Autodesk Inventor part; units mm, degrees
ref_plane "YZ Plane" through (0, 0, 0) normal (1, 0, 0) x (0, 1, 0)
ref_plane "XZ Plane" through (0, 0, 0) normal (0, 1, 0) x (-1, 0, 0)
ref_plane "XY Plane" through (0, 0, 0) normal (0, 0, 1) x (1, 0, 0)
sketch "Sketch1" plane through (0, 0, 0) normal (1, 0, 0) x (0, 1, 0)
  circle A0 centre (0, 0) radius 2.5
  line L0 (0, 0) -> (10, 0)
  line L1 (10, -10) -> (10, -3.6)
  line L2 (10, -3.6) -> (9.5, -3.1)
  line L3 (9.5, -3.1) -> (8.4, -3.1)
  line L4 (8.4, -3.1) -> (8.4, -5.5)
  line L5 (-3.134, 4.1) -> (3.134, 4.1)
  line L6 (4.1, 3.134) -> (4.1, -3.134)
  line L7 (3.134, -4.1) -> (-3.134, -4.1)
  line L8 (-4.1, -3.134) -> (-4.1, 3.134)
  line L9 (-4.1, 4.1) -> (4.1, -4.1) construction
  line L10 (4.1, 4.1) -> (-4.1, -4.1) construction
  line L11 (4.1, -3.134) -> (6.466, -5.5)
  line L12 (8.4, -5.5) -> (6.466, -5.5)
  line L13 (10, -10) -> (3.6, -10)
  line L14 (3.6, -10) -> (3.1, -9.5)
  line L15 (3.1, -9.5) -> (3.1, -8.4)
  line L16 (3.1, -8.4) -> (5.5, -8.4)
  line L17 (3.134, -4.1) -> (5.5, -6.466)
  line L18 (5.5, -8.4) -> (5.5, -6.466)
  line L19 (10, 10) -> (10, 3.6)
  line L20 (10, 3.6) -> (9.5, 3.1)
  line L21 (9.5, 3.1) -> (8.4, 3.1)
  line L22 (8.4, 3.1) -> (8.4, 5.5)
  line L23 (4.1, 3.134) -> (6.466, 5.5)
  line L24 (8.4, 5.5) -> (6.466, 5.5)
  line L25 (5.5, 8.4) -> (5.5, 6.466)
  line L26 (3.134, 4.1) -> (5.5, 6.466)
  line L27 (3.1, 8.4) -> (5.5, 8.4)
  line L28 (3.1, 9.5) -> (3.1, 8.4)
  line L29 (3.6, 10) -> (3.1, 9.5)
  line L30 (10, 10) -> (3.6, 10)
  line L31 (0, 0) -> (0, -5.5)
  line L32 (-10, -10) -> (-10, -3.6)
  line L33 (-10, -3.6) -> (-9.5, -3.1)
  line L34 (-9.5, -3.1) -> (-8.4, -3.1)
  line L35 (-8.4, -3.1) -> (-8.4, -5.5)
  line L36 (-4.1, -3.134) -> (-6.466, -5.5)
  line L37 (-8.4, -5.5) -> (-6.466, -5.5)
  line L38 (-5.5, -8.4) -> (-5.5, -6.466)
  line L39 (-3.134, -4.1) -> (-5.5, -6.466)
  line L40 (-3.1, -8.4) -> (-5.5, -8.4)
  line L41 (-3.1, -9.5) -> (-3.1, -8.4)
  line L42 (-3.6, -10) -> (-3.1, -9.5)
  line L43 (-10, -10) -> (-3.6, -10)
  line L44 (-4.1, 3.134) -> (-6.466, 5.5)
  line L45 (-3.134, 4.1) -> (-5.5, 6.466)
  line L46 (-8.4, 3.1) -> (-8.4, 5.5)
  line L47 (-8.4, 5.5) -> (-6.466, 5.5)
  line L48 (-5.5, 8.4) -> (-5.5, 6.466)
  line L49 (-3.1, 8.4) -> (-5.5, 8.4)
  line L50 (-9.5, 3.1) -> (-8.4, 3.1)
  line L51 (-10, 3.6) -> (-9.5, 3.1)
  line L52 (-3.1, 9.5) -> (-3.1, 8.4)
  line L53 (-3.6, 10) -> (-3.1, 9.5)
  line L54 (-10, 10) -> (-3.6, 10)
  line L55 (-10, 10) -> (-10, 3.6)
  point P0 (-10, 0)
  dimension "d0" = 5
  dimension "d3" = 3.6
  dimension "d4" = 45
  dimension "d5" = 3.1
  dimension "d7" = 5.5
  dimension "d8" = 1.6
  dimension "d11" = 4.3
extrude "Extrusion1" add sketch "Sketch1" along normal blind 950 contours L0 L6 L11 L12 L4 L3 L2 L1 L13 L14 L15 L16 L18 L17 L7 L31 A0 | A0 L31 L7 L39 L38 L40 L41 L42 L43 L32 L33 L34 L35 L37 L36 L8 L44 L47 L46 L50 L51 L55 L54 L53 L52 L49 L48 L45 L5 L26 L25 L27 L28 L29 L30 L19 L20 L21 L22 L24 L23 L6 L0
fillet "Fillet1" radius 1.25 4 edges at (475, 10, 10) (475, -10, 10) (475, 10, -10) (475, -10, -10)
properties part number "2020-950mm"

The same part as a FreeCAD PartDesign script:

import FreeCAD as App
import Part
import Sketcher


def edges_at(feature, points):
    """Names of the edges that pass closest to the given points."""
    edges = feature.Shape.Edges
    near = lambda p: min(range(len(edges)), key=lambda i: edges[i].distToShape(Part.Vertex(*p))[0])
    return sorted({f"Edge{near(p) + 1}" for p in points})

doc = App.newDocument("Part")
params = doc.addObject("Spreadsheet::Sheet", "Params")
for row, (alias, value) in enumerate([
    ("sketch1_diameter", "5 mm"),
    ("sketch1_width", "6.4 mm"),
    ("pad1_length", "950 mm"),
    ("fillet_radius", "1.25 mm"),
], start=1):
    params.set(f"A{row}", alias)
    params.set(f"B{row}", "=" + value)
    params.setAlias(f"B{row}", alias)

body = doc.addObject("PartDesign::Body", "Body")

sketch1 = body.newObject("Sketcher::SketchObject", "Sketch")
sketch1.AttachmentSupport = (doc.getObject("YZ_Plane"), [""])
sketch1.MapMode = "FlatFace"
sketch1.addGeometry(Part.LineSegment(App.Vector(4.1, -3.1, 0), App.Vector(4.1, 3.1, 0)), False)
sketch1.addGeometry(Part.LineSegment(App.Vector(4.1, 3.1, 0), App.Vector(6.5, 5.5, 0)), False)
sketch1.addGeometry(Part.LineSegment(App.Vector(6.5, 5.5, 0), App.Vector(8.4, 5.5, 0)), False)
sketch1.addGeometry(Part.LineSegment(App.Vector(8.4, 5.5, 0), App.Vector(8.4, 3.1, 0)), False)
sketch1.addGeometry(Part.LineSegment(App.Vector(8.4, 3.1, 0), App.Vector(9.5, 3.1, 0)), False)
sketch1.addGeometry(Part.LineSegment(App.Vector(9.5, 3.1, 0), App.Vector(10, 3.6, 0)), False)
sketch1.addGeometry(Part.LineSegment(App.Vector(10, 3.6, 0), App.Vector(10, 10, 0)), False)
sketch1.addGeometry(Part.LineSegment(App.Vector(10, 10, 0), App.Vector(3.6, 10, 0)), False)
sketch1.addGeometry(Part.LineSegment(App.Vector(3.6, 10, 0), App.Vector(3.1, 9.5, 0)), False)
sketch1.addGeometry(Part.LineSegment(App.Vector(3.1, 9.5, 0), App.Vector(3.1, 8.4, 0)), False)
sketch1.addGeometry(Part.LineSegment(App.Vector(3.1, 8.4, 0), App.Vector(5.5, 8.4, 0)), False)
sketch1.addGeometry(Part.LineSegment(App.Vector(5.5, 8.4, 0), App.Vector(5.5, 6.5, 0)), False)
sketch1.addGeometry(Part.LineSegment(App.Vector(5.5, 6.5, 0), App.Vector(3.1, 4.1, 0)), False)
sketch1.addGeometry(Part.LineSegment(App.Vector(3.1, 4.1, 0), App.Vector(-3.1, 4.1, 0)), False)
sketch1.addGeometry(Part.LineSegment(App.Vector(-3.1, 4.1, 0), App.Vector(-5.5, 6.5, 0)), False)
sketch1.addGeometry(Part.LineSegment(App.Vector(-5.5, 6.5, 0), App.Vector(-5.5, 8.4, 0)), False)
sketch1.addGeometry(Part.LineSegment(App.Vector(-5.5, 8.4, 0), App.Vector(-3.1, 8.4, 0)), False)
sketch1.addGeometry(Part.LineSegment(App.Vector(-3.1, 8.4, 0), App.Vector(-3.1, 9.5, 0)), False)
sketch1.addGeometry(Part.LineSegment(App.Vector(-3.1, 9.5, 0), App.Vector(-3.6, 10, 0)), False)
sketch1.addGeometry(Part.LineSegment(App.Vector(-3.6, 10, 0), App.Vector(-10, 10, 0)), False)
sketch1.addGeometry(Part.LineSegment(App.Vector(-10, 10, 0), App.Vector(-10, 3.6, 0)), False)
sketch1.addGeometry(Part.LineSegment(App.Vector(-10, 3.6, 0), App.Vector(-9.5, 3.1, 0)), False)
sketch1.addGeometry(Part.LineSegment(App.Vector(-9.5, 3.1, 0), App.Vector(-8.4, 3.1, 0)), False)
sketch1.addGeometry(Part.LineSegment(App.Vector(-8.4, 3.1, 0), App.Vector(-8.4, 5.5, 0)), False)
sketch1.addGeometry(Part.LineSegment(App.Vector(-8.4, 5.5, 0), App.Vector(-6.5, 5.5, 0)), False)
sketch1.addGeometry(Part.LineSegment(App.Vector(-6.5, 5.5, 0), App.Vector(-4.1, 3.1, 0)), False)
sketch1.addGeometry(Part.LineSegment(App.Vector(-4.1, 3.1, 0), App.Vector(-4.1, -3.1, 0)), False)
sketch1.addGeometry(Part.LineSegment(App.Vector(-4.1, -3.1, 0), App.Vector(-6.5, -5.5, 0)), False)
sketch1.addGeometry(Part.LineSegment(App.Vector(-6.5, -5.5, 0), App.Vector(-8.4, -5.5, 0)), False)
sketch1.addGeometry(Part.LineSegment(App.Vector(-8.4, -5.5, 0), App.Vector(-8.4, -3.1, 0)), False)
sketch1.addGeometry(Part.LineSegment(App.Vector(-8.4, -3.1, 0), App.Vector(-9.5, -3.1, 0)), False)
sketch1.addGeometry(Part.LineSegment(App.Vector(-9.5, -3.1, 0), App.Vector(-10, -3.6, 0)), False)
sketch1.addGeometry(Part.LineSegment(App.Vector(-10, -3.6, 0), App.Vector(-10, -10, 0)), False)
sketch1.addGeometry(Part.LineSegment(App.Vector(-10, -10, 0), App.Vector(-3.6, -10, 0)), False)
sketch1.addGeometry(Part.LineSegment(App.Vector(-3.6, -10, 0), App.Vector(-3.1, -9.5, 0)), False)
sketch1.addGeometry(Part.LineSegment(App.Vector(-3.1, -9.5, 0), App.Vector(-3.1, -8.4, 0)), False)
sketch1.addGeometry(Part.LineSegment(App.Vector(-3.1, -8.4, 0), App.Vector(-5.5, -8.4, 0)), False)
sketch1.addGeometry(Part.LineSegment(App.Vector(-5.5, -8.4, 0), App.Vector(-5.5, -6.5, 0)), False)
sketch1.addGeometry(Part.LineSegment(App.Vector(-5.5, -6.5, 0), App.Vector(-3.1, -4.1, 0)), False)
sketch1.addGeometry(Part.LineSegment(App.Vector(-3.1, -4.1, 0), App.Vector(3.1, -4.1, 0)), False)
sketch1.addGeometry(Part.LineSegment(App.Vector(3.1, -4.1, 0), App.Vector(5.5, -6.5, 0)), False)
sketch1.addGeometry(Part.LineSegment(App.Vector(5.5, -6.5, 0), App.Vector(5.5, -8.4, 0)), False)
sketch1.addGeometry(Part.LineSegment(App.Vector(5.5, -8.4, 0), App.Vector(3.1, -8.4, 0)), False)
sketch1.addGeometry(Part.LineSegment(App.Vector(3.1, -8.4, 0), App.Vector(3.1, -9.5, 0)), False)
sketch1.addGeometry(Part.LineSegment(App.Vector(3.1, -9.5, 0), App.Vector(3.6, -10, 0)), False)
sketch1.addGeometry(Part.LineSegment(App.Vector(3.6, -10, 0), App.Vector(10, -10, 0)), False)
sketch1.addGeometry(Part.LineSegment(App.Vector(10, -10, 0), App.Vector(10, -3.6, 0)), False)
sketch1.addGeometry(Part.LineSegment(App.Vector(10, -3.6, 0), App.Vector(9.5, -3.1, 0)), False)
sketch1.addGeometry(Part.LineSegment(App.Vector(9.5, -3.1, 0), App.Vector(8.4, -3.1, 0)), False)
sketch1.addGeometry(Part.LineSegment(App.Vector(8.4, -3.1, 0), App.Vector(8.4, -5.5, 0)), False)
sketch1.addGeometry(Part.LineSegment(App.Vector(8.4, -5.5, 0), App.Vector(6.5, -5.5, 0)), False)
sketch1.addGeometry(Part.LineSegment(App.Vector(6.5, -5.5, 0), App.Vector(4.1, -3.1, 0)), False)
sketch1.addGeometry(Part.Circle(App.Vector(0, 0, 0), App.Vector(0, 0, 1), 2.5), False)
sketch1.addConstraint(Sketcher.Constraint("Coincident", 0, 2, 1, 1))
sketch1.addConstraint(Sketcher.Constraint("Coincident", 1, 2, 2, 1))
sketch1.addConstraint(Sketcher.Constraint("Coincident", 2, 2, 3, 1))
sketch1.addConstraint(Sketcher.Constraint("Coincident", 3, 2, 4, 1))
sketch1.addConstraint(Sketcher.Constraint("Coincident", 4, 2, 5, 1))
sketch1.addConstraint(Sketcher.Constraint("Coincident", 5, 2, 6, 1))
sketch1.addConstraint(Sketcher.Constraint("Coincident", 6, 2, 7, 1))
sketch1.addConstraint(Sketcher.Constraint("Coincident", 7, 2, 8, 1))
sketch1.addConstraint(Sketcher.Constraint("Coincident", 8, 2, 9, 1))
sketch1.addConstraint(Sketcher.Constraint("Coincident", 9, 2, 10, 1))
sketch1.addConstraint(Sketcher.Constraint("Coincident", 10, 2, 11, 1))
sketch1.addConstraint(Sketcher.Constraint("Coincident", 11, 2, 12, 1))
sketch1.addConstraint(Sketcher.Constraint("Coincident", 12, 2, 13, 1))
sketch1.addConstraint(Sketcher.Constraint("Coincident", 13, 2, 14, 1))
sketch1.addConstraint(Sketcher.Constraint("Coincident", 14, 2, 15, 1))
sketch1.addConstraint(Sketcher.Constraint("Coincident", 15, 2, 16, 1))
sketch1.addConstraint(Sketcher.Constraint("Coincident", 16, 2, 17, 1))
sketch1.addConstraint(Sketcher.Constraint("Coincident", 17, 2, 18, 1))
sketch1.addConstraint(Sketcher.Constraint("Coincident", 18, 2, 19, 1))
sketch1.addConstraint(Sketcher.Constraint("Coincident", 19, 2, 20, 1))
sketch1.addConstraint(Sketcher.Constraint("Coincident", 20, 2, 21, 1))
sketch1.addConstraint(Sketcher.Constraint("Coincident", 21, 2, 22, 1))
sketch1.addConstraint(Sketcher.Constraint("Coincident", 22, 2, 23, 1))
sketch1.addConstraint(Sketcher.Constraint("Coincident", 23, 2, 24, 1))
sketch1.addConstraint(Sketcher.Constraint("Coincident", 24, 2, 25, 1))
sketch1.addConstraint(Sketcher.Constraint("Coincident", 25, 2, 26, 1))
sketch1.addConstraint(Sketcher.Constraint("Coincident", 26, 2, 27, 1))
sketch1.addConstraint(Sketcher.Constraint("Coincident", 27, 2, 28, 1))
sketch1.addConstraint(Sketcher.Constraint("Coincident", 28, 2, 29, 1))
sketch1.addConstraint(Sketcher.Constraint("Coincident", 29, 2, 30, 1))
sketch1.addConstraint(Sketcher.Constraint("Coincident", 30, 2, 31, 1))
sketch1.addConstraint(Sketcher.Constraint("Coincident", 31, 2, 32, 1))
sketch1.addConstraint(Sketcher.Constraint("Coincident", 32, 2, 33, 1))
sketch1.addConstraint(Sketcher.Constraint("Coincident", 33, 2, 34, 1))
sketch1.addConstraint(Sketcher.Constraint("Coincident", 34, 2, 35, 1))
sketch1.addConstraint(Sketcher.Constraint("Coincident", 35, 2, 36, 1))
sketch1.addConstraint(Sketcher.Constraint("Coincident", 36, 2, 37, 1))
sketch1.addConstraint(Sketcher.Constraint("Coincident", 37, 2, 38, 1))
sketch1.addConstraint(Sketcher.Constraint("Coincident", 38, 2, 39, 1))
sketch1.addConstraint(Sketcher.Constraint("Coincident", 39, 2, 40, 1))
sketch1.addConstraint(Sketcher.Constraint("Coincident", 40, 2, 41, 1))
sketch1.addConstraint(Sketcher.Constraint("Coincident", 41, 2, 42, 1))
sketch1.addConstraint(Sketcher.Constraint("Coincident", 42, 2, 43, 1))
sketch1.addConstraint(Sketcher.Constraint("Coincident", 43, 2, 44, 1))
sketch1.addConstraint(Sketcher.Constraint("Coincident", 44, 2, 45, 1))
sketch1.addConstraint(Sketcher.Constraint("Coincident", 45, 2, 46, 1))
sketch1.addConstraint(Sketcher.Constraint("Coincident", 46, 2, 47, 1))
sketch1.addConstraint(Sketcher.Constraint("Coincident", 47, 2, 48, 1))
sketch1.addConstraint(Sketcher.Constraint("Coincident", 48, 2, 49, 1))
sketch1.addConstraint(Sketcher.Constraint("Coincident", 49, 2, 50, 1))
sketch1.addConstraint(Sketcher.Constraint("Coincident", 50, 2, 51, 1))
sketch1.addConstraint(Sketcher.Constraint("Coincident", 51, 2, 0, 1))
sketch1.addConstraint(Sketcher.Constraint("Vertical", 0))
sketch1.addConstraint(Sketcher.Constraint("Horizontal", 2))
sketch1.addConstraint(Sketcher.Constraint("Vertical", 3))
sketch1.addConstraint(Sketcher.Constraint("Horizontal", 4))
sketch1.addConstraint(Sketcher.Constraint("Vertical", 6))
sketch1.addConstraint(Sketcher.Constraint("Horizontal", 7))
sketch1.addConstraint(Sketcher.Constraint("Vertical", 9))
sketch1.addConstraint(Sketcher.Constraint("Horizontal", 10))
sketch1.addConstraint(Sketcher.Constraint("Vertical", 11))
sketch1.addConstraint(Sketcher.Constraint("Horizontal", 13))
sketch1.addConstraint(Sketcher.Constraint("Vertical", 15))
sketch1.addConstraint(Sketcher.Constraint("Horizontal", 16))
sketch1.addConstraint(Sketcher.Constraint("Vertical", 17))
sketch1.addConstraint(Sketcher.Constraint("Horizontal", 19))
sketch1.addConstraint(Sketcher.Constraint("Vertical", 20))
sketch1.addConstraint(Sketcher.Constraint("Horizontal", 22))
sketch1.addConstraint(Sketcher.Constraint("Vertical", 23))
sketch1.addConstraint(Sketcher.Constraint("Horizontal", 24))
sketch1.addConstraint(Sketcher.Constraint("Vertical", 26))
sketch1.addConstraint(Sketcher.Constraint("Horizontal", 28))
sketch1.addConstraint(Sketcher.Constraint("Vertical", 29))
sketch1.addConstraint(Sketcher.Constraint("Horizontal", 30))
sketch1.addConstraint(Sketcher.Constraint("Vertical", 32))
sketch1.addConstraint(Sketcher.Constraint("Horizontal", 33))
sketch1.addConstraint(Sketcher.Constraint("Vertical", 35))
sketch1.addConstraint(Sketcher.Constraint("Horizontal", 36))
sketch1.addConstraint(Sketcher.Constraint("Vertical", 37))
sketch1.addConstraint(Sketcher.Constraint("Horizontal", 39))
sketch1.addConstraint(Sketcher.Constraint("Vertical", 41))
sketch1.addConstraint(Sketcher.Constraint("Horizontal", 42))
sketch1.addConstraint(Sketcher.Constraint("Vertical", 43))
sketch1.addConstraint(Sketcher.Constraint("Horizontal", 45))
sketch1.addConstraint(Sketcher.Constraint("Vertical", 46))
sketch1.addConstraint(Sketcher.Constraint("Horizontal", 48))
sketch1.addConstraint(Sketcher.Constraint("Vertical", 49))
sketch1.addConstraint(Sketcher.Constraint("Horizontal", 50))
sketch1.addConstraint(Sketcher.Constraint("Coincident", 52, 3, -1, 1))
sketch1.addConstraint(Sketcher.Constraint("Symmetric", 0, 2, 26, 2, -1, 1))
sketch1.addConstraint(Sketcher.Constraint("Symmetric", 1, 2, 27, 2, -1, 1))
sketch1.addConstraint(Sketcher.Constraint("Symmetric", 3, 2, 29, 2, -1, 1))
sketch1.addConstraint(Sketcher.Constraint("Symmetric", 5, 2, 31, 2, -1, 1))
sketch1.addConstraint(Sketcher.Constraint("Symmetric", 7, 2, 33, 2, -1, 1))
sketch1.addConstraint(Sketcher.Constraint("Symmetric", 8, 2, 34, 2, -1, 1))
sketch1.addConstraint(Sketcher.Constraint("Symmetric", 10, 2, 36, 2, -1, 1))
sketch1.addConstraint(Sketcher.Constraint("Symmetric", 12, 2, 38, 2, -1, 1))
sketch1.addConstraint(Sketcher.Constraint("Symmetric", 14, 2, 40, 2, -1, 1))
sketch1.addConstraint(Sketcher.Constraint("Symmetric", 16, 2, 42, 2, -1, 1))
sketch1.addConstraint(Sketcher.Constraint("Symmetric", 18, 2, 44, 2, -1, 1))
sketch1.addConstraint(Sketcher.Constraint("Symmetric", 20, 2, 46, 2, -1, 1))
sketch1.addConstraint(Sketcher.Constraint("Symmetric", 21, 2, 47, 2, -1, 1))
sketch1.addConstraint(Sketcher.Constraint("Symmetric", 23, 2, 49, 2, -1, 1))
sketch1.addConstraint(Sketcher.Constraint("Symmetric", 11, 2, 14, 2, -2))
sketch1.addConstraint(Sketcher.Constraint("Symmetric", 9, 2, 16, 2, -2))
sketch1.addConstraint(Sketcher.Constraint("Symmetric", 7, 2, 18, 2, -2))
sketch1.addConstraint(Sketcher.Constraint("Symmetric", 5, 2, 20, 2, -2))
sketch1.addConstraint(Sketcher.Constraint("Symmetric", 4, 2, 21, 2, -2))
sketch1.addConstraint(Sketcher.Constraint("Symmetric", 2, 2, 23, 2, -2))
sketch1.addConstraint(Sketcher.Constraint("Parallel", 1, 5))
sketch1.addConstraint(Sketcher.Constraint("Parallel", 5, 8))
sketch1.addConstraint(Sketcher.Constraint("Parallel", 8, 12))
sketch1.addConstraint(Sketcher.Constraint("Perpendicular", 12, 14))
sketch1.addConstraint(Sketcher.Constraint("Parallel", 14, 18))
sketch1.addConstraint(Sketcher.Constraint("Parallel", 18, 21))
sketch1.addConstraint(Sketcher.Constraint("Parallel", 21, 25))
sketch1.addConstraint(Sketcher.Constraint("Parallel", 27, 31))
sketch1.addConstraint(Sketcher.Constraint("Parallel", 34, 38))
sketch1.addConstraint(Sketcher.Constraint("Perpendicular", 38, 40))
sketch1.addConstraint(Sketcher.Constraint("Parallel", 40, 44))
sketch1.addConstraint(Sketcher.Constraint("Parallel", 47, 51))
sketch1.addConstraint(Sketcher.Constraint("Horizontal", 0, 2, 25, 2))
sketch1.addConstraint(Sketcher.Constraint("Horizontal", 26, 2, 51, 2))
sketch1.addConstraint(Sketcher.Constraint("Equal", 39, 0))
sketch1.addConstraint(Sketcher.Constraint("Equal", 42, 3))
sketch1.addConstraint(Sketcher.Constraint("Equal", 45, 6))
sketch1.addConstraint(Sketcher.Constraint("Equal", 48, 9))
sketch1.addConstraint(Sketcher.Constraint("Equal", 50, 11))
sketch1.addConstraint(Sketcher.Constraint("Equal", 5, 8))
sketch1.addConstraint(Sketcher.Constraint("Equal", 1, 12))
sketch1.addConstraint(Sketcher.Constraint("Diameter", 52, 5.0))
sketch1.addConstraint(Sketcher.Constraint("DistanceY", -1, 1, 1, 2, 5.5))
sketch1.addConstraint(Sketcher.Constraint("DistanceY", -1, 1, 3, 2, 3.1))
sketch1.addConstraint(Sketcher.Constraint("DistanceY", -1, 1, 5, 2, 3.6))
sketch1.addConstraint(Sketcher.Constraint("DistanceX", 0, 2, 2, 2, 4.3))
sketch1.addConstraint(Sketcher.Constraint("DistanceX", 3, 2, 5, 2, 1.6))
sketch1.addConstraint(Sketcher.Constraint("DistanceX", 7, 2, 7, 1, 6.4))
sketch1.addConstraint(Sketcher.Constraint("DistanceX", 2, 1, 2, 2, 1.934))
sketch1.setExpression("Constraints[130]", "Params.sketch1_diameter")
sketch1.setExpression("Constraints[136]", "Params.sketch1_width")
pad1 = body.newObject("PartDesign::Pad", "Pad")
pad1.Profile = sketch1
pad1.setExpression("Length", "Params.pad1_length")
doc.recompute()

fillet = body.newObject("PartDesign::Fillet", "Fillet")
fillet.Base = (pad1, edges_at(pad1, [
    (475, 10, 10),
    (475, -10, 10),
    (475, 10, -10),
    (475, -10, -10),
]))
fillet.setExpression("Radius", "Params.fillet_radius")

doc.recompute()
